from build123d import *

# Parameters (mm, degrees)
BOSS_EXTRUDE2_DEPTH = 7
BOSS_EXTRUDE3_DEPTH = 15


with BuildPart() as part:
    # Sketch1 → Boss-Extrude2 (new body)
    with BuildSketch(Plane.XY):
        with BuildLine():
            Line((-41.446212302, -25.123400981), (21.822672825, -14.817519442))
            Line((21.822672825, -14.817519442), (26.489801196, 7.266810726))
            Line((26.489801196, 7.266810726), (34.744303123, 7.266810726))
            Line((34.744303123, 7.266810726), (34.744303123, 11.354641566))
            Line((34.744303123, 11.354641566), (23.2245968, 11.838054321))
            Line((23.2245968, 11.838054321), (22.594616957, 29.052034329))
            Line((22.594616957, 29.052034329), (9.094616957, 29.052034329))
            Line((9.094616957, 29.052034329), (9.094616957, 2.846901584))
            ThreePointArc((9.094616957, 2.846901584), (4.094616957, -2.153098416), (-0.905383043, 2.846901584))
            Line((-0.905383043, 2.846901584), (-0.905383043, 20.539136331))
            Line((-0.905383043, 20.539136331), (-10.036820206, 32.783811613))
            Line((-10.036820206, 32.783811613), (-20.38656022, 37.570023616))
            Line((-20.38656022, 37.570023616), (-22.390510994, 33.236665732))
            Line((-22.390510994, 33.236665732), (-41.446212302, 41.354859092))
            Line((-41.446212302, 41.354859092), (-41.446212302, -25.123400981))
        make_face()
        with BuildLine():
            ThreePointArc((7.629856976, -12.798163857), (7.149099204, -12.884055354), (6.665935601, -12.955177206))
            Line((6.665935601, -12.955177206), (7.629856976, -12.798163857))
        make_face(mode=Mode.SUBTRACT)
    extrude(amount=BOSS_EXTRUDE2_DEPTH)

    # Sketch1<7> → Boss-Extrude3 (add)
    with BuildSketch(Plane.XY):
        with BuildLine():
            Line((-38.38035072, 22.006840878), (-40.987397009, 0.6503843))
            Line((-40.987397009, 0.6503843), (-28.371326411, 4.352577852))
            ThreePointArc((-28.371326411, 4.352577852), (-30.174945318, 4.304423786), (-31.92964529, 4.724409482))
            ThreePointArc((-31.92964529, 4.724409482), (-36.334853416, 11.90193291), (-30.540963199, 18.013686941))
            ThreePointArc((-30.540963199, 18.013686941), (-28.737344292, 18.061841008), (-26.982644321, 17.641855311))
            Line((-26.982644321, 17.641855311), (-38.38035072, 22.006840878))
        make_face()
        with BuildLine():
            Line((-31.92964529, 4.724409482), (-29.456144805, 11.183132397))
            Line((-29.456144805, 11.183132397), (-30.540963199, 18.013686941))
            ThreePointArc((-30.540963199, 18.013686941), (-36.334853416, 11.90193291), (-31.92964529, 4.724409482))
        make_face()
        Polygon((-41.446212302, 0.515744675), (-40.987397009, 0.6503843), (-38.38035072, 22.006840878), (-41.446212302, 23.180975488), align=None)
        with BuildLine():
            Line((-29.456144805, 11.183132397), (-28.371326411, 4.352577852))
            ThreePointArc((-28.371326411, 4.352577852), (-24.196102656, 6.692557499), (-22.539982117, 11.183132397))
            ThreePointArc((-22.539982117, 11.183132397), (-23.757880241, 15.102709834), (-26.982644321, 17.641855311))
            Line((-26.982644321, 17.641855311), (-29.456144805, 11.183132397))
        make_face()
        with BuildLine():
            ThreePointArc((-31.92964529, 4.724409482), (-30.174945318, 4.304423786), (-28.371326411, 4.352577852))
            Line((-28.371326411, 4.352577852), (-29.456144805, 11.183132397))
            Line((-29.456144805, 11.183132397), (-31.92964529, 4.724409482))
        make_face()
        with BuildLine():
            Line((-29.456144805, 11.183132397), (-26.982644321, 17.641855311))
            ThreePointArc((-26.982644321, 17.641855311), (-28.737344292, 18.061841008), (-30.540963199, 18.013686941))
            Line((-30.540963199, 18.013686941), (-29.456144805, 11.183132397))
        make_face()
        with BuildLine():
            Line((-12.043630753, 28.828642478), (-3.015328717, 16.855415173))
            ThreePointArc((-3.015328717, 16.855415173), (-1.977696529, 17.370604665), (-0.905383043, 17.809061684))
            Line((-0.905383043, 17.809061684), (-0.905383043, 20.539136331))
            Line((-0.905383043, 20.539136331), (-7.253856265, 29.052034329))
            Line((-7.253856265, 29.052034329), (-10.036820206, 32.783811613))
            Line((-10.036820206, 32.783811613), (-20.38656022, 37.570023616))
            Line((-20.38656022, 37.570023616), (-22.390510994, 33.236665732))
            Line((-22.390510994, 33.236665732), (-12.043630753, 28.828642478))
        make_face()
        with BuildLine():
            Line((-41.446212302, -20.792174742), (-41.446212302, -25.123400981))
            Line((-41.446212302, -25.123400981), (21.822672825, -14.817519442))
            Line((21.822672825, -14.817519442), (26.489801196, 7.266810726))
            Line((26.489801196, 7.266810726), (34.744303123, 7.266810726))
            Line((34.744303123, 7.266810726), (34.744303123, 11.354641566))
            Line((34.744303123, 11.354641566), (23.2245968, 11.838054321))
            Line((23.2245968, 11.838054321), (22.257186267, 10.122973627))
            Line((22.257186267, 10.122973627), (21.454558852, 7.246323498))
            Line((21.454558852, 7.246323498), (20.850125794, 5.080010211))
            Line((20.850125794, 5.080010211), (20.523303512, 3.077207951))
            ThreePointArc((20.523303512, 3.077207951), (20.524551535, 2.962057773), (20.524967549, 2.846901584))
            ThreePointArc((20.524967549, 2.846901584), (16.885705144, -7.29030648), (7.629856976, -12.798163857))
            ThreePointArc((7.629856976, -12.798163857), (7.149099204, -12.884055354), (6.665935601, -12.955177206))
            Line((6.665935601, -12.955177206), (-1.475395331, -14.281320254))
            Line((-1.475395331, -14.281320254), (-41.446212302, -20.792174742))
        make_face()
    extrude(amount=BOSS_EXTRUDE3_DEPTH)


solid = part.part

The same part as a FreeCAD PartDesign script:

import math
import FreeCAD as App
import Part
import Sketcher
from FreeCAD import Vector
Q = App.Units.Quantity

doc = App.newDocument("Part")
body = doc.addObject("PartDesign::Body", "Body")

# Sketch on XY plane
sketch1 = doc.addObject("Sketcher::SketchObject", "Sketch")
body.addObject(sketch1)
sketch1.AttachmentSupport = (doc.XY_Plane, [""])
sketch1.MapMode = "FlatFace"
sketch1.addGeometry(Part.LineSegment(Vector(-41.446212, -25.123401, 0), Vector(21.822673, -14.817519, 0)), False)
sketch1.addGeometry(Part.LineSegment(Vector(21.822673, -14.817519, 0), Vector(26.489801, 7.266811, 0)), False)
sketch1.addGeometry(Part.LineSegment(Vector(26.489801, 7.266811, 0), Vector(34.744303, 7.266811, 0)), False)
sketch1.addGeometry(Part.LineSegment(Vector(34.744303, 7.266811, 0), Vector(34.744303, 11.354642, 0)), False)
sketch1.addGeometry(Part.LineSegment(Vector(34.744303, 11.354642, 0), Vector(23.224597, 11.838054, 0)), False)
sketch1.addGeometry(Part.LineSegment(Vector(23.224597, 11.838054, 0), Vector(22.594617, 29.052034, 0)), False)
sketch1.addGeometry(Part.LineSegment(Vector(22.594617, 29.052034, 0), Vector(9.094617, 29.052034, 0)), False)
sketch1.addGeometry(Part.LineSegment(Vector(9.094617, 29.052034, 0), Vector(9.094617, 2.846902, 0)), False)
sketch1.addGeometry(Part.ArcOfCircle(Part.Circle(Vector(4.094617, 2.846902, 0), Vector(0, 0, 1), 5), math.radians(180), math.radians(360)), False)
sketch1.addGeometry(Part.LineSegment(Vector(-0.905383, 2.846902, 0), Vector(-0.905383, 20.539136, 0)), False)
sketch1.addGeometry(Part.LineSegment(Vector(-0.905383, 20.539136, 0), Vector(-10.03682, 32.783812, 0)), False)
sketch1.addGeometry(Part.LineSegment(Vector(-10.03682, 32.783812, 0), Vector(-20.38656, 37.570024, 0)), False)
sketch1.addGeometry(Part.LineSegment(Vector(-20.38656, 37.570024, 0), Vector(-22.390511, 33.236666, 0)), False)
sketch1.addGeometry(Part.LineSegment(Vector(-22.390511, 33.236666, 0), Vector(-41.446212, 41.354859, 0)), False)
sketch1.addGeometry(Part.LineSegment(Vector(-41.446212, 41.354859, 0), Vector(-41.446212, -25.123401, 0)), False)
sketch1.addGeometry(Part.LineSegment(Vector(6.665936, -12.955177, 0), Vector(7.629857, -12.798164, 0)), False)
sketch1.addGeometry(Part.ArcOfCircle(Part.Circle(Vector(4.586681, 2.846901, 0), Vector(0, 0, 1), 15.938286), math.radians(-82.50402), math.radians(-78.992646)), False)
sketch1.addConstraint(Sketcher.Constraint("Coincident", 0, 2, 1, 1))
sketch1.addConstraint(Sketcher.Constraint("Coincident", 1, 2, 2, 1))
sketch1.addConstraint(Sketcher.Constraint("Coincident", 2, 2, 3, 1))
sketch1.addConstraint(Sketcher.Constraint("Coincident", 3, 2, 4, 1))
sketch1.addConstraint(Sketcher.Constraint("Coincident", 4, 2, 5, 1))
sketch1.addConstraint(Sketcher.Constraint("Coincident", 5, 2, 6, 1))
sketch1.addConstraint(Sketcher.Constraint("Coincident", 6, 2, 7, 1))
sketch1.addConstraint(Sketcher.Constraint("Tangent", 7, 2, 8, 2))
sketch1.addConstraint(Sketcher.Constraint("Tangent", 8, 1, 9, 1))
sketch1.addConstraint(Sketcher.Constraint("Coincident", 9, 2, 10, 1))
sketch1.addConstraint(Sketcher.Constraint("Coincident", 10, 2, 11, 1))
sketch1.addConstraint(Sketcher.Constraint("Coincident", 11, 2, 12, 1))
sketch1.addConstraint(Sketcher.Constraint("Coincident", 12, 2, 13, 1))
sketch1.addConstraint(Sketcher.Constraint("Coincident", 13, 2, 14, 1))
sketch1.addConstraint(Sketcher.Constraint("Coincident", 14, 2, 0, 1))
sketch1.addConstraint(Sketcher.Constraint("Coincident", 15, 1, 16, 1))
sketch1.addConstraint(Sketcher.Constraint("Coincident", 16, 2, 15, 2))
sketch1.addConstraint(Sketcher.Constraint("Horizontal", 2))
sketch1.addConstraint(Sketcher.Constraint("Vertical", 3))
sketch1.addConstraint(Sketcher.Constraint("Horizontal", 6))
sketch1.addConstraint(Sketcher.Constraint("Vertical", 7))
sketch1.addConstraint(Sketcher.Constraint("Vertical", 9))
sketch1.addConstraint(Sketcher.Constraint("Vertical", 14))
sketch1.addConstraint(Sketcher.Constraint("Perpendicular", 11, 12))
sketch1.addConstraint(Sketcher.Constraint("Parallel", 0, 15))
sketch1.addConstraint(Sketcher.Constraint("Horizontal", 8, 3, 16, 3))
sketch1.addConstraint(Sketcher.Constraint("Radius", 8, Q("5 mm")))
sketch1.addConstraint(Sketcher.Constraint("DistanceX", 6, 2, 6, 1, Q("13.5 mm")))
sketch1.addConstraint(Sketcher.Constraint("DistanceX", 2, 1, 2, 2, Q("8.254502 mm")))
sketch1.addConstraint(Sketcher.Constraint("Radius", 16, Q("15.938286 mm")))
sketch1.addConstraint(Sketcher.Constraint("Distance", 1, Q("22.572101 mm")))
sketch1.addConstraint(Sketcher.Constraint("DistanceY", 3, 1, 3, 2, Q("4.087831 mm")))
sketch1.addConstraint(Sketcher.Constraint("DistanceY", 14, 2, 14, 1, Q("66.47826 mm")))
sketch1.addConstraint(Sketcher.Constraint("DistanceY", -1, 1, 8, 3, Q("2.846902 mm")))
sketch1.addConstraint(Sketcher.Constraint("DistanceX", -1, 1, 1, 2, Q("26.489801 mm")))
sketch1.addConstraint(Sketcher.Constraint("DistanceY", 14, 2, -1, 1, Q("25.123401 mm")))
sketch1.addConstraint(Sketcher.Constraint("DistanceX", 13, 2, 12, 2, Q("19.055701 mm")))
sketch1.addConstraint(Sketcher.Constraint("Distance", 10, Q("15.274659 mm")))
sketch1.addConstraint(Sketcher.Constraint("Distance", 11, Q("11.402848 mm")))
sketch1.addConstraint(Sketcher.Constraint("DistanceY", 7, 2, 7, 1, Q("26.205133 mm")))
sketch1.addConstraint(Sketcher.Constraint("DistanceY", 9, 1, 9, 2, Q("17.692235 mm")))
sketch1.addConstraint(Sketcher.Constraint("DistanceX", -1, 1, 16, 3, Q("4.586681 mm")))
sketch1.addConstraint(Sketcher.Constraint("DistanceY", 0, 2, -1, 1, Q("14.817519 mm")))
sketch1.addConstraint(Sketcher.Constraint("DistanceY", -1, 1, 1, 2, Q("7.266811 mm")))
sketch1.addConstraint(Sketcher.Constraint("DistanceX", 10, 2, -1, 1, Q("10.03682 mm")))
sketch1.addConstraint(Sketcher.Constraint("DistanceY", -1, 1, 10, 2, Q("32.783812 mm")))
sketch1.addConstraint(Sketcher.Constraint("DistanceX", 11, 2, -1, 1, Q("20.38656 mm")))
sketch1.addConstraint(Sketcher.Constraint("DistanceX", 12, 2, -1, 1, Q("22.390511 mm")))
sketch1.addConstraint(Sketcher.Constraint("DistanceX", 8, 3, 4, 2, Q("19.12998 mm")))
sketch1.addConstraint(Sketcher.Constraint("DistanceY", 4, 2, 5, 2, Q("17.21398 mm")))
sketch1.addConstraint(Sketcher.Constraint("DistanceY", 15, 1, 16, 3, Q("15.802078 mm")))
pad1 = doc.addObject("PartDesign::Pad", "Pad")
body.addObject(pad1)
pad1.Profile = sketch1
pad1.Length = 7

# Sketch on XY plane
sketch2 = doc.addObject("Sketcher::SketchObject", "Sketch001")
body.addObject(sketch2)
sketch2.AttachmentSupport = (doc.XY_Plane, [""])
sketch2.MapMode = "FlatFace"
sketch2.addGeometry(Part.ArcOfCircle(Part.Circle(Vector(-29.456145, 11.183132, 0), Vector(0, 0, 1), 6.916163), math.radians(0), math.radians(69.044633)), False)
sketch2.addGeometry(Part.LineSegment(Vector(-26.982644, 17.641855, 0), Vector(-38.380351, 22.006841, 0)), False)
sketch2.addGeometry(Part.LineSegment(Vector(-38.380351, 22.006841, 0), Vector(-41.446212, 23.180975, 0)), False)
sketch2.addGeometry(Part.LineSegment(Vector(-41.446212, 23.180975, 0), Vector(-41.446212, 0.515745, 0)), False)
sketch2.addGeometry(Part.LineSegment(Vector(-41.446212, 0.515745, 0), Vector(-40.987397, 0.650384, 0)), False)
sketch2.addGeometry(Part.LineSegment(Vector(-40.987397, 0.650384, 0), Vector(-28.371326, 4.352578, 0)), False)
sketch2.addGeometry(Part.ArcOfCircle(Part.Circle(Vector(-29.456145, 11.183132, 0), Vector(0, 0, 1), 6.916163), math.radians(-80.975741), math.radians(0)), False)
sketch2.addGeometry(Part.LineSegment(Vector(-12.043631, 28.828642, 0), Vector(-3.015329, 16.855415, 0)), False)
sketch2.addGeometry(Part.ArcOfCircle(Part.Circle(Vector(4.58668, 2.846902, 0), Vector(0, 0, 1), 15.938287), math.radians(110.156345), math.radians(118.487385)), False)
sketch2.addGeometry(Part.LineSegment(Vector(-0.905383, 17.809062, 0), Vector(-0.905383, 20.539136, 0)), False)
sketch2.addGeometry(Part.LineSegment(Vector(-0.905383, 20.539136, 0), Vector(-7.253856, 29.052034, 0)), False)
sketch2.addGeometry(Part.LineSegment(Vector(-7.253856, 29.052034, 0), Vector(-10.03682, 32.783812, 0)), False)
sketch2.addGeometry(Part.LineSegment(Vector(-10.03682, 32.783812, 0), Vector(-20.38656, 37.570024, 0)), False)
sketch2.addGeometry(Part.LineSegment(Vector(-20.38656, 37.570024, 0), Vector(-22.390511, 33.236666, 0)), False)
sketch2.addGeometry(Part.LineSegment(Vector(-22.390511, 33.236666, 0), Vector(-12.043631, 28.828642, 0)), False)
sketch2.addGeometry(Part.LineSegment(Vector(-41.446212, -20.792175, 0), Vector(-41.446212, -25.123401, 0)), False)
sketch2.addGeometry(Part.LineSegment(Vector(-41.446212, -25.123401, 0), Vector(21.822673, -14.817519, 0)), False)
sketch2.addGeometry(Part.LineSegment(Vector(21.822673, -14.817519, 0), Vector(26.489801, 7.266811, 0)), False)
sketch2.addGeometry(Part.LineSegment(Vector(26.489801, 7.266811, 0), Vector(34.744303, 7.266811, 0)), False)
sketch2.addGeometry(Part.LineSegment(Vector(34.744303, 7.266811, 0), Vector(34.744303, 11.354642, 0)), False)
sketch2.addGeometry(Part.LineSegment(Vector(34.744303, 11.354642, 0), Vector(23.224597, 11.838054, 0)), False)
sketch2.addGeometry(Part.LineSegment(Vector(23.224597, 11.838054, 0), Vector(22.257186, 10.122974, 0)), False)
sketch2.addGeometry(Part.LineSegment(Vector(22.257186, 10.122974, 0), Vector(21.454559, 7.246323, 0)), False)
sketch2.addGeometry(Part.LineSegment(Vector(21.454559, 7.246323, 0), Vector(20.850126, 5.08001, 0)), False)
sketch2.addGeometry(Part.LineSegment(Vector(20.850126, 5.08001, 0), Vector(20.523304, 3.077208, 0)), False)
sketch2.addGeometry(Part.ArcOfCircle(Part.Circle(Vector(4.586709, 2.846902, 0), Vector(0, 0, 1), 15.938259), math.radians(-0.000001), math.radians(0.827947)), False)
sketch2.addGeometry(Part.ArcOfCircle(Part.Circle(Vector(4.58668, 2.846902, 0), Vector(0, 0, 1), 15.938287), math.radians(-78.992646), math.radians(0)), False)
sketch2.addGeometry(Part.ArcOfCircle(Part.Circle(Vector(4.586681, 2.846901, 0), Vector(0, 0, 1), 15.938286), math.radians(-82.50402), math.radians(-78.992646)), False)
sketch2.addGeometry(Part.LineSegment(Vector(6.665936, -12.955177, 0), Vector(-1.475395, -14.28132, 0)), False)
sketch2.addGeometry(Part.LineSegment(Vector(-1.475395, -14.28132, 0), Vector(-41.446212, -20.792175, 0)), False)
sketch2.addConstraint(Sketcher.Constraint("Tangent", 0, 2, 1, 1))
sketch2.addConstraint(Sketcher.Constraint("Coincident", 1, 2, 2, 1))
sketch2.addConstraint(Sketcher.Constraint("Coincident", 2, 2, 3, 1))
sketch2.addConstraint(Sketcher.Constraint("Coincident", 3, 2, 4, 1))
sketch2.addConstraint(Sketcher.Constraint("Coincident", 4, 2, 5, 1))
sketch2.addConstraint(Sketcher.Constraint("Coincident", 5, 2, 6, 1))
sketch2.addConstraint(Sketcher.Constraint("Tangent", 6, 2, 0, 1))
sketch2.addConstraint(Sketcher.Constraint("Coincident", 7, 2, 8, 2))
sketch2.addConstraint(Sketcher.Constraint("Coincident", 8, 1, 9, 1))
sketch2.addConstraint(Sketcher.Constraint("Coincident", 9, 2, 10, 1))
sketch2.addConstraint(Sketcher.Constraint("Coincident", 10, 2, 11, 1))
sketch2.addConstraint(Sketcher.Constraint("Coincident", 11, 2, 12, 1))
sketch2.addConstraint(Sketcher.Constraint("Coincident", 12, 2, 13, 1))
sketch2.addConstraint(Sketcher.Constraint("Coincident", 13, 2, 14, 1))
sketch2.addConstraint(Sketcher.Constraint("Coincident", 14, 2, 7, 1))
sketch2.addConstraint(Sketcher.Constraint("Coincident", 15, 2, 16, 1))
sketch2.addConstraint(Sketcher.Constraint("Coincident", 16, 2, 17, 1))
sketch2.addConstraint(Sketcher.Constraint("Coincident", 17, 2, 18, 1))
sketch2.addConstraint(Sketcher.Constraint("Coincident", 18, 2, 19, 1))
sketch2.addConstraint(Sketcher.Constraint("Coincident", 19, 2, 20, 1))
sketch2.addConstraint(Sketcher.Constraint("Coincident", 20, 2, 21, 1))
sketch2.addConstraint(Sketcher.Constraint("Coincident", 21, 2, 22, 1))
sketch2.addConstraint(Sketcher.Constraint("Coincident", 22, 2, 23, 1))
sketch2.addConstraint(Sketcher.Constraint("Coincident", 23, 2, 24, 1))
sketch2.addConstraint(Sketcher.Constraint("Coincident", 24, 2, 25, 2))
sketch2.addConstraint(Sketcher.Constraint("Tangent", 25, 1, 26, 2))
sketch2.addConstraint(Sketcher.Constraint("Tangent", 26, 1, 27, 2))
sketch2.addConstraint(Sketcher.Constraint("Coincident", 27, 1, 28, 1))
sketch2.addConstraint(Sketcher.Constraint("Coincident", 28, 2, 29, 1))
sketch2.addConstraint(Sketcher.Constraint("Coincident", 29, 2, 15, 1))
sketch2.addConstraint(Sketcher.Constraint("Vertical", 3))
sketch2.addConstraint(Sketcher.Constraint("Vertical", 9))
sketch2.addConstraint(Sketcher.Constraint("Vertical", 15))
sketch2.addConstraint(Sketcher.Constraint("Horizontal", 18))
sketch2.addConstraint(Sketcher.Constraint("Vertical", 19))
sketch2.addConstraint(Sketcher.Constraint("Coincident", 26, 3, 8, 3))
sketch2.addConstraint(Sketcher.Constraint("Equal", 0, 6))
sketch2.addConstraint(Sketcher.Constraint("Equal", 8, 26))
sketch2.addConstraint(Sketcher.Constraint("Equal", 26, 27))
sketch2.addConstraint(Sketcher.Constraint("Parallel", 1, 2))
sketch2.addConstraint(Sketcher.Constraint("Parallel", 4, 5))
sketch2.addConstraint(Sketcher.Constraint("Parallel", 10, 11))
sketch2.addConstraint(Sketcher.Constraint("Perpendicular", 12, 13))
sketch2.addConstraint(Sketcher.Constraint("Parallel", 22, 23))
sketch2.addConstraint(Sketcher.Constraint("Parallel", 16, 28))
sketch2.addConstraint(Sketcher.Constraint("Parallel", 28, 29))
sketch2.addConstraint(Sketcher.Constraint("Horizontal", 0, 3, 6, 2))
sketch2.addConstraint(Sketcher.Constraint("Horizontal", 27, 3, 25, 1))
sketch2.addConstraint(Sketcher.Constraint("Vertical", 3, 2, 15, 2))
sketch2.addConstraint(Sketcher.Constraint("Radius", 25, Q("15.938259 mm")))
sketch2.addConstraint(Sketcher.Constraint("Distance", 2, Q("3.283002 mm")))
sketch2.addConstraint(Sketcher.Constraint("DistanceX", 18, 1, 18, 2, Q("8.254502 mm")))
sketch2.addConstraint(Sketcher.Constraint("Radius", 0, Q("6.916163 mm")))
sketch2.addConstraint(Sketcher.Constraint("Radius", 8, Q("15.938287 mm")))
sketch2.addConstraint(Sketcher.Constraint("Distance", 17, Q("22.572101 mm")))
sketch2.addConstraint(Sketcher.Constraint("DistanceY", 3, 2, 3, 1, Q("22.665231 mm")))
sketch2.addConstraint(Sketcher.Constraint("DistanceY", 19, 1, 19, 2, Q("4.087831 mm")))
sketch2.addConstraint(Sketcher.Constraint("DistanceY", -1, 1, 8, 3, Q("2.846902 mm")))
sketch2.addConstraint(Sketcher.Constraint("DistanceY", 15, 2, -1, 1, Q("25.123401 mm")))
sketch2.addConstraint(Sketcher.Constraint("DistanceX", -1, 1, 17, 2, Q("26.489801 mm")))
sketch2.addConstraint(Sketcher.Constraint("DistanceX", 0, 3, 0, 2, Q("2.4735 mm")))
sketch2.addConstraint(Sketcher.Constraint("DistanceY", 6, 2, 10, 2, Q("17.868902 mm")))
sketch2.addConstraint(Sketcher.Constraint("DistanceY", 23, 2, 17, 2, Q("2.186801 mm")))
sketch2.addConstraint(Sketcher.Constraint("Distance", 1, Q("12.20495 mm")))
sketch2.addConstraint(Sketcher.Constraint("Distance", 5, Q("13.14806 mm")))
sketch2.addConstraint(Sketcher.Constraint("Distance", 10, Q("10.619442 mm")))
sketch2.addConstraint(Sketcher.Constraint("Distance", 12, Q("11.402848 mm")))
sketch2.addConstraint(Sketcher.Constraint("Distance", 28, Q("8.248632 mm")))
sketch2.addConstraint(Sketcher.Constraint("DistanceY", 9, 1, 9, 2, Q("2.730075 mm")))
sketch2.addConstraint(Sketcher.Constraint("DistanceY", 15, 2, 15, 1, Q("4.331226 mm")))
sketch2.addConstraint(Sketcher.Constraint("DistanceX", -1, 1, 8, 3, Q("4.58668 mm")))
sketch2.addConstraint(Sketcher.Constraint("DistanceX", 1, 2, -1, 1, Q("38.380351 mm")))
sketch2.addConstraint(Sketcher.Constraint("DistanceY", -1, 1, 1, 2, Q("22.006841 mm")))
sketch2.addConstraint(Sketcher.Constraint("DistanceX", 7, 2, -1, 1, Q("3.015329 mm")))
sketch2.addConstraint(Sketcher.Constraint("DistanceY", -1, 1, 8, 1, Q("17.809062 mm")))
sketch2.addConstraint(Sketcher.Constraint("DistanceX", 11, 2, -1, 1, Q("10.03682 mm")))
sketch2.addConstraint(Sketcher.Constraint("DistanceX", 12, 2, -1, 1, Q("20.38656 mm")))
sketch2.addConstraint(Sketcher.Constraint("DistanceX", 13, 2, -1, 1, Q("22.390511 mm")))
sketch2.addConstraint(Sketcher.Constraint("DistanceX", 14, 2, -1, 1, Q("12.043631 mm")))
sketch2.addConstraint(Sketcher.Constraint("DistanceY", 16, 2, -1, 1, Q("14.817519 mm")))
sketch2.addConstraint(Sketcher.Constraint("DistanceY", -1, 1, 17, 2, Q("7.266811 mm")))
sketch2.addConstraint(Sketcher.Constraint("DistanceX", -1, 1, 22, 2, Q("21.454559 mm")))
sketch2.addConstraint(Sketcher.Constraint("DistanceY", 3, 2, 4, 2, Q("0.13464 mm")))
sketch2.addConstraint(Sketcher.Constraint("DistanceY", 14, 2, 11, 2, Q("3.955169 mm")))
sketch2.addConstraint(Sketcher.Constraint("DistanceX", 25, 3, 20, 2, Q("18.637888 mm")))
sketch2.addConstraint(Sketcher.Constraint("DistanceX", 21, 2, 20, 2, Q("0.967411 mm")))
sketch2.addConstraint(Sketcher.Constraint("DistanceY", 21, 2, 20, 2, Q("1.715081 mm")))
sketch2.addConstraint(Sketcher.Constraint("DistanceY", 25, 3, 21, 2, Q("7.276072 mm")))
sketch2.addConstraint(Sketcher.Constraint("DistanceY", 22, 2, 21, 2, Q("2.87665 mm")))
sketch2.addConstraint(Sketcher.Constraint("DistanceX", 25, 3, 26, 1, Q("3.043148 mm")))
sketch2.addConstraint(Sketcher.Constraint("Distance", 24, Q("2.029293 mm")))
pad2 = doc.addObject("PartDesign::Pad", "Pad001")
body.addObject(pad2)
pad2.Profile = sketch2
pad2.Length = 15

doc.recompute()
